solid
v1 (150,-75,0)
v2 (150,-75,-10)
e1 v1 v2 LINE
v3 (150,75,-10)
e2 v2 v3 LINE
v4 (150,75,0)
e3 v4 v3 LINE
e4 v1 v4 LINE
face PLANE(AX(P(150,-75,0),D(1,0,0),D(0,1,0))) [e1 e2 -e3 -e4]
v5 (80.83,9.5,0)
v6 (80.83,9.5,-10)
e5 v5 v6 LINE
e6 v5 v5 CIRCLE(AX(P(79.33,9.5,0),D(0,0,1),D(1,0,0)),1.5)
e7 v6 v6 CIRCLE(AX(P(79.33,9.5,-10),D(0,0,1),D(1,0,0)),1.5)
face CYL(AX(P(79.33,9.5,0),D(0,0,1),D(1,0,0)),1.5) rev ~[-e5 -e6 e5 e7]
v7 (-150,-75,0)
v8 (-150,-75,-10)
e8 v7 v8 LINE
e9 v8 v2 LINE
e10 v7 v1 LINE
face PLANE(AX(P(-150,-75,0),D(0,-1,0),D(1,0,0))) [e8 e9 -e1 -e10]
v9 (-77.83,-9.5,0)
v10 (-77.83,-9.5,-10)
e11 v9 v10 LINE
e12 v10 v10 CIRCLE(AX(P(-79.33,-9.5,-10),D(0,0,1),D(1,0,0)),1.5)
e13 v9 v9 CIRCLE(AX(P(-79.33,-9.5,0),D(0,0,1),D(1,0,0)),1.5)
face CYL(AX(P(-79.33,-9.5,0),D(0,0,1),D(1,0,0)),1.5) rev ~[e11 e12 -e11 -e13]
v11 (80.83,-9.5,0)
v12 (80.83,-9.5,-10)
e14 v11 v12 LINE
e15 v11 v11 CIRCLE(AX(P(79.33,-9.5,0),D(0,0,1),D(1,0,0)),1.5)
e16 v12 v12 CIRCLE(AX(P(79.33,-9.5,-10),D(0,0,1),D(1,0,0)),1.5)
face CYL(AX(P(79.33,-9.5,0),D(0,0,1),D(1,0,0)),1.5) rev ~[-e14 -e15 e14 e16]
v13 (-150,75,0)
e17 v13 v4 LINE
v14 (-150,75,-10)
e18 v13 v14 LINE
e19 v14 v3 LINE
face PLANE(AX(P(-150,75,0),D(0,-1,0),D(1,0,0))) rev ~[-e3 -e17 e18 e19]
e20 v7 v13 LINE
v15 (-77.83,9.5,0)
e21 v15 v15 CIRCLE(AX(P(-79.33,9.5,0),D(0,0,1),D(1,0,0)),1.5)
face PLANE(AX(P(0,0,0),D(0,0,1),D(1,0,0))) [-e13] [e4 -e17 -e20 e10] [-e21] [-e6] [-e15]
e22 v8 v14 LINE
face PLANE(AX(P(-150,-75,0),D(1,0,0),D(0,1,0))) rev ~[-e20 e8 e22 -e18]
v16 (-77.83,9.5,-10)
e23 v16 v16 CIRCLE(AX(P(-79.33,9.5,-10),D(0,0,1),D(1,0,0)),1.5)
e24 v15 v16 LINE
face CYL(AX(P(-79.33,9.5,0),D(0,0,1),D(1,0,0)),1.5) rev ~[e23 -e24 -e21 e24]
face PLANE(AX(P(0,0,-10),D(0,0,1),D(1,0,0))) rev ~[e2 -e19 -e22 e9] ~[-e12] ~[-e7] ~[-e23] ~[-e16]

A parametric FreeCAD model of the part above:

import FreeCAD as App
import Part
import Sketcher

V = App.Vector
Q = App.Units.Quantity


def add_polygon(sketch, points):
    """Adds a closed chain of lines whose ends are joined by coincident constraints."""
    first, n = sketch.GeometryCount, len(points)
    for a, b in zip(points, points[1:] + points[:1]):
        sketch.addGeometry(Part.LineSegment(App.Vector(*a, 0), App.Vector(*b, 0)), False)
    for i in range(n):
        sketch.addConstraint(Sketcher.Constraint("Coincident", first + i, 2, first + (i + 1) % n, 1))

doc = App.newDocument("Part")
body = doc.addObject("PartDesign::Body", "Body")

# Sketch on XY plane
sketch1 = body.newObject("Sketcher::SketchObject", "Sketch")
sketch1.AttachmentSupport = (doc.getObject("XY_Plane"), [""])
sketch1.MapMode = "FlatFace"
add_polygon(sketch1, [(-150, 75), (-150, -75), (150, -75), (150, 75)])  # lines 0-3
sketch1.addConstraint([
    Sketcher.Constraint("Vertical", 0),
    Sketcher.Constraint("Horizontal", 1),
    Sketcher.Constraint("Vertical", 2),
    Sketcher.Constraint("Horizontal", 3),
    Sketcher.Constraint("Symmetric", 0, 2, 2, 2, -1, 1),
    Sketcher.Constraint("DistanceX", 1, 1, 1, 2, Q("300 mm")),
    Sketcher.Constraint("DistanceY", 0, 2, 0, 1, Q("150 mm")),
])
pad1 = body.newObject("PartDesign::Pad", "Pad")
pad1.Profile = sketch1
pad1.Length = 10
pad1.Reversed = True

# Sketch on XY plane
sketch2 = body.newObject("Sketcher::SketchObject", "Sketch001")
sketch2.AttachmentSupport = (doc.getObject("XY_Plane"), [""])
sketch2.MapMode = "FlatFace"
sketch2.addGeometry([
    Part.Circle(V(79.3, 9.5, 0), V(0, 0, 1), 1.5),
    Part.Circle(V(79.3, -9.5, 0), V(0, 0, 1), 1.5),
    Part.Circle(V(-79.3, -9.5, 0), V(0, 0, 1), 1.5),
    Part.Circle(V(-79.3, 9.5, 0), V(0, 0, 1), 1.5),
], False)
sketch2.addConstraint([
    Sketcher.Constraint("Equal", 0, 1),
    Sketcher.Constraint("Equal", 1, 2),
    Sketcher.Constraint("Equal", 2, 3),
    Sketcher.Constraint("Symmetric", 0, 3, 2, 3, -1, 1),
    Sketcher.Constraint("Symmetric", 1, 3, 3, 3, -1, 1),
    Sketcher.Constraint("Symmetric", 1, 3, 2, 3, -2),
    Sketcher.Constraint("Diameter", 0, Q("3 mm")),
    Sketcher.Constraint("DistanceY", 1, 3, 0, 3, Q("19 mm")),
    Sketcher.Constraint("DistanceX", -1, 1, 0, 3, Q("79.33 mm")),
])
pocket1 = body.newObject("PartDesign::Pocket", "Pocket")
pocket1.Profile = sketch2
pocket1.Length = 100

doc.recompute()
